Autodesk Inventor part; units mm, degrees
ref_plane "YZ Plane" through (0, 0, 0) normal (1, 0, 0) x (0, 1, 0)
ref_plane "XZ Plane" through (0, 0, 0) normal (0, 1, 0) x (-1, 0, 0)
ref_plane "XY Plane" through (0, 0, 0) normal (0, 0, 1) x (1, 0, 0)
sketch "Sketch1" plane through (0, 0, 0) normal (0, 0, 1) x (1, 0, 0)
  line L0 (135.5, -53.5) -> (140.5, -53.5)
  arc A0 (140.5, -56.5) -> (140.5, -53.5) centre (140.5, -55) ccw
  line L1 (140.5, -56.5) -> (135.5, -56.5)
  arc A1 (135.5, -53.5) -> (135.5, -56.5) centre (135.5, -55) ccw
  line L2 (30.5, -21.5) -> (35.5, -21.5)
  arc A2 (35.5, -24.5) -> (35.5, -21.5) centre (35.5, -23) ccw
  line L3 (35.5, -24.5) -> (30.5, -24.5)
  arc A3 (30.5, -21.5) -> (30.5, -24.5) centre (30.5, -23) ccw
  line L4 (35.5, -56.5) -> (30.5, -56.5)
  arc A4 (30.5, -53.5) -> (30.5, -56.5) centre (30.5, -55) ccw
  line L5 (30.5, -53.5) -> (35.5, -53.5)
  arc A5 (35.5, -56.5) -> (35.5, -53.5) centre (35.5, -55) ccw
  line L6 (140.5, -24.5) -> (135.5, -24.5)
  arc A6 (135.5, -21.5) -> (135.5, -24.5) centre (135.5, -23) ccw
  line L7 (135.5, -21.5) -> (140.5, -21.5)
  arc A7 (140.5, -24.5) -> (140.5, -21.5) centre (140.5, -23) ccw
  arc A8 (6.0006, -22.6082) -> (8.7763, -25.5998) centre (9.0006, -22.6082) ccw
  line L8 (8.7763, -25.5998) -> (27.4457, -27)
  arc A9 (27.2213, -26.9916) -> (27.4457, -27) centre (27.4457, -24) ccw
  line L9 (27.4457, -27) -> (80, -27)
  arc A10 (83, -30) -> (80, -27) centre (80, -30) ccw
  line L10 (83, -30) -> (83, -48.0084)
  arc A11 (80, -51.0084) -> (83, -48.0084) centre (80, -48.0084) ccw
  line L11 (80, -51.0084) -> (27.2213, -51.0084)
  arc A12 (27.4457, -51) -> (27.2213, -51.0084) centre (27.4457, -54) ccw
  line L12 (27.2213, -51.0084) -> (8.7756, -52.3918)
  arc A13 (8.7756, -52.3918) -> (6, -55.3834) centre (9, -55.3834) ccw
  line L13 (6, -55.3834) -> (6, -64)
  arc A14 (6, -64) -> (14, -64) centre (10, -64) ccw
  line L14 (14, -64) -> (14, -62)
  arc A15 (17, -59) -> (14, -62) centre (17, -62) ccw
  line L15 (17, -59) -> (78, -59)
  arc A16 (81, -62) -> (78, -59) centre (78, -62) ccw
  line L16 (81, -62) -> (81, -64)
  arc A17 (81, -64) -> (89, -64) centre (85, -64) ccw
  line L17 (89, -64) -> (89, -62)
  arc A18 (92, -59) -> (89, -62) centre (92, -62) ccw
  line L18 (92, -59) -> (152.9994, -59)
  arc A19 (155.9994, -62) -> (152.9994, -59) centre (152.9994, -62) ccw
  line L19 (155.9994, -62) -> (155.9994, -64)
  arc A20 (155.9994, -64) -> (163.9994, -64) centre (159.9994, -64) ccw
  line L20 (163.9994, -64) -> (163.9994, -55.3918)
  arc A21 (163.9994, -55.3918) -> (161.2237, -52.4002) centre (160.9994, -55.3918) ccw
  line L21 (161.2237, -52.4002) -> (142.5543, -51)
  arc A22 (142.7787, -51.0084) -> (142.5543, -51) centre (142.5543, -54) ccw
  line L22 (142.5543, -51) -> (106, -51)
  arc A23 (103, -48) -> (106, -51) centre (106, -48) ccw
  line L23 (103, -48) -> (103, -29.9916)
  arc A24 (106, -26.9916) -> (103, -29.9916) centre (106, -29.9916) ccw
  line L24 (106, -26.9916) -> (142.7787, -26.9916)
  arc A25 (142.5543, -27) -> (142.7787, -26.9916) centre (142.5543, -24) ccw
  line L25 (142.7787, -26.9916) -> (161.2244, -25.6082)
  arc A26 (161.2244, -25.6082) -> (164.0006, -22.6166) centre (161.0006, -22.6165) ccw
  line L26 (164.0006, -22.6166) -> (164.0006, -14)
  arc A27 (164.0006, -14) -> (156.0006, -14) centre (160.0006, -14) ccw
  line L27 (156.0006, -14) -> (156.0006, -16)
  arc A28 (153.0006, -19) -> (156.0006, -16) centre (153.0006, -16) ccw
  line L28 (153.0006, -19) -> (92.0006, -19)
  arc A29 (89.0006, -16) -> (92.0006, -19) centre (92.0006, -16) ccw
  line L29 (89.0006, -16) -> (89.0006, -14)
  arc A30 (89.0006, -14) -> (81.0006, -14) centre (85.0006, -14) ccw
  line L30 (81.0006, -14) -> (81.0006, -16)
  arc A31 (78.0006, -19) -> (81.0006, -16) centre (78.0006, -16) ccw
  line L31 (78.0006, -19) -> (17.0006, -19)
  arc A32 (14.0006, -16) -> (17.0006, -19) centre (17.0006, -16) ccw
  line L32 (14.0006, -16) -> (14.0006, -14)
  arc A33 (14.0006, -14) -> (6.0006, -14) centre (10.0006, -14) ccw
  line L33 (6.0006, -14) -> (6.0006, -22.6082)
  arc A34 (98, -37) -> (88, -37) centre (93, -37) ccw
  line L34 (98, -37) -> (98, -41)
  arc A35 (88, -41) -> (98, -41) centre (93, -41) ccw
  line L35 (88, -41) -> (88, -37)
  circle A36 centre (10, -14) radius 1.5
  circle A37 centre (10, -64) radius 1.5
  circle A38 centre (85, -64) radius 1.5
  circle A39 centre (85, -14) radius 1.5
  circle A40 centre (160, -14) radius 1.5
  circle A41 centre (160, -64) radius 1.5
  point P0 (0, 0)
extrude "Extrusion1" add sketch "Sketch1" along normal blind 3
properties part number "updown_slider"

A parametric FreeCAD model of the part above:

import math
import FreeCAD as App
import Part
import Sketcher
from FreeCAD import Vector
Q = App.Units.Quantity

doc = App.newDocument("Part")
body = doc.addObject("PartDesign::Body", "Body")

sketch1 = body.newObject("Sketcher::SketchObject", "Sketch")
sketch1.AttachmentSupport = (doc.getObject("XY_Plane"), [""])
sketch1.MapMode = "FlatFace"
sketch1.addGeometry([
    Part.LineSegment(Vector(6, -14, 0), Vector(6, -22.6, 0)),
    Part.ArcOfCircle(Part.Circle(Vector(9, -22.6, 0), Vector(0, 0, 1), 3), math.radians(180), math.radians(266)),
    Part.LineSegment(Vector(8.8, -25.6, 0), Vector(27.4, -27, 0)),
    Part.LineSegment(Vector(27.4, -27, 0), Vector(80, -27, 0)),
    Part.ArcOfCircle(Part.Circle(Vector(80, -30, 0), Vector(0, 0, 1), 3), math.radians(0), math.radians(90)),
    Part.LineSegment(Vector(83, -30, 0), Vector(83, -48, 0)),
    Part.ArcOfCircle(Part.Circle(Vector(80, -48, 0), Vector(0, 0, 1), 3), math.radians(-90), math.radians(0)),
    Part.LineSegment(Vector(80, -51, 0), Vector(27.2, -51, 0)),
    Part.LineSegment(Vector(27.2, -51, 0), Vector(8.8, -52.4, 0)),
    Part.ArcOfCircle(Part.Circle(Vector(9, -55.4, 0), Vector(0, 0, 1), 3), math.radians(94), math.radians(180)),
    Part.LineSegment(Vector(6, -55.4, 0), Vector(6, -64, 0)),
    Part.ArcOfCircle(Part.Circle(Vector(10, -64, 0), Vector(0, 0, 1), 4), math.radians(180), math.radians(360)),
    Part.LineSegment(Vector(14, -64, 0), Vector(14, -62, 0)),
    Part.ArcOfCircle(Part.Circle(Vector(17, -62, 0), Vector(0, 0, 1), 3), math.radians(90), math.radians(180)),
    Part.LineSegment(Vector(17, -59, 0), Vector(78, -59, 0)),
    Part.ArcOfCircle(Part.Circle(Vector(78, -62, 0), Vector(0, 0, 1), 3), math.radians(0), math.radians(90)),
    Part.LineSegment(Vector(81, -62, 0), Vector(81, -64, 0)),
    Part.ArcOfCircle(Part.Circle(Vector(85, -64, 0), Vector(0, 0, 1), 4), math.radians(180), math.radians(360)),
    Part.LineSegment(Vector(89, -64, 0), Vector(89, -62, 0)),
    Part.ArcOfCircle(Part.Circle(Vector(92, -62, 0), Vector(0, 0, 1), 3), math.radians(90), math.radians(180)),
    Part.LineSegment(Vector(92, -59, 0), Vector(153, -59, 0)),
    Part.ArcOfCircle(Part.Circle(Vector(153, -62, 0), Vector(0, 0, 1), 3), math.radians(0), math.radians(90)),
    Part.LineSegment(Vector(156, -62, 0), Vector(156, -64, 0)),
    Part.ArcOfCircle(Part.Circle(Vector(160, -64, 0), Vector(0, 0, 1), 4), math.radians(180), math.radians(360)),
    Part.LineSegment(Vector(164, -64, 0), Vector(164, -55.4, 0)),
    Part.ArcOfCircle(Part.Circle(Vector(161, -55.4, 0), Vector(0, 0, 1), 3), math.radians(0), math.radians(86)),
    Part.LineSegment(Vector(161.2, -52.4, 0), Vector(142.6, -51, 0)),
    Part.LineSegment(Vector(142.6, -51, 0), Vector(106, -51, 0)),
    Part.ArcOfCircle(Part.Circle(Vector(106, -48, 0), Vector(0, 0, 1), 3), math.radians(180), math.radians(270)),
    Part.LineSegment(Vector(103, -48, 0), Vector(103, -30, 0)),
    Part.ArcOfCircle(Part.Circle(Vector(106, -30, 0), Vector(0, 0, 1), 3), math.radians(90), math.radians(180)),
    Part.LineSegment(Vector(106, -27, 0), Vector(142.8, -27, 0)),
    Part.LineSegment(Vector(142.8, -27, 0), Vector(161.2, -25.6, 0)),
    Part.ArcOfCircle(Part.Circle(Vector(161, -22.6, 0), Vector(0, 0, 1), 3), math.radians(-86), math.radians(0)),
    Part.LineSegment(Vector(164, -22.6, 0), Vector(164, -14, 0)),
    Part.ArcOfCircle(Part.Circle(Vector(160, -14, 0), Vector(0, 0, 1), 4), math.radians(0), math.radians(180)),
    Part.LineSegment(Vector(156, -14, 0), Vector(156, -16, 0)),
    Part.ArcOfCircle(Part.Circle(Vector(153, -16, 0), Vector(0, 0, 1), 3), math.radians(-90), math.radians(0)),
    Part.LineSegment(Vector(153, -19, 0), Vector(92, -19, 0)),
    Part.ArcOfCircle(Part.Circle(Vector(92, -16, 0), Vector(0, 0, 1), 3), math.radians(180), math.radians(270)),
    Part.LineSegment(Vector(89, -16, 0), Vector(89, -14, 0)),
    Part.ArcOfCircle(Part.Circle(Vector(85, -14, 0), Vector(0, 0, 1), 4), math.radians(0), math.radians(180)),
    Part.LineSegment(Vector(81, -14, 0), Vector(81, -16, 0)),
    Part.ArcOfCircle(Part.Circle(Vector(78, -16, 0), Vector(0, 0, 1), 3), math.radians(-90), math.radians(0)),
    Part.LineSegment(Vector(78, -19, 0), Vector(17, -19, 0)),
    Part.ArcOfCircle(Part.Circle(Vector(17, -16, 0), Vector(0, 0, 1), 3), math.radians(180), math.radians(270)),
    Part.LineSegment(Vector(14, -16, 0), Vector(14, -14, 0)),
    Part.ArcOfCircle(Part.Circle(Vector(10, -14, 0), Vector(0, 0, 1), 4), math.radians(0), math.radians(180)),
    Part.Circle(Vector(10, -64, 0), Vector(0, 0, 1), 1.5),
    Part.ArcOfCircle(Part.Circle(Vector(35.5, -55, 0), Vector(0, 0, 1), 1.5), math.radians(-90), math.radians(90)),
    Part.LineSegment(Vector(35.5, -56.5, 0), Vector(30.5, -56.5, 0)),
    Part.ArcOfCircle(Part.Circle(Vector(30.5, -55, 0), Vector(0, 0, 1), 1.5), math.radians(90), math.radians(270)),
    Part.LineSegment(Vector(30.5, -53.5, 0), Vector(35.5, -53.5, 0)),
    Part.Circle(Vector(85, -64, 0), Vector(0, 0, 1), 1.5),
    Part.Circle(Vector(160, -64, 0), Vector(0, 0, 1), 1.5),
    Part.ArcOfCircle(Part.Circle(Vector(135.5, -55, 0), Vector(0, 0, 1), 1.5), math.radians(90), math.radians(270)),
    Part.LineSegment(Vector(135.5, -53.5, 0), Vector(140.5, -53.5, 0)),
    Part.ArcOfCircle(Part.Circle(Vector(140.5, -55, 0), Vector(0, 0, 1), 1.5), math.radians(-90), math.radians(90)),
    Part.LineSegment(Vector(140.5, -56.5, 0), Vector(135.5, -56.5, 0)),
    Part.ArcOfCircle(Part.Circle(Vector(30.5, -23, 0), Vector(0, 0, 1), 1.5), math.radians(90), math.radians(270)),
    Part.LineSegment(Vector(30.5, -21.5, 0), Vector(35.5, -21.5, 0)),
    Part.ArcOfCircle(Part.Circle(Vector(35.5, -23, 0), Vector(0, 0, 1), 1.5), math.radians(-90), math.radians(90)),
    Part.LineSegment(Vector(35.5, -24.5, 0), Vector(30.5, -24.5, 0)),
    Part.Circle(Vector(10, -14, 0), Vector(0, 0, 1), 1.5),
    Part.Circle(Vector(85, -14, 0), Vector(0, 0, 1), 1.5),
    Part.ArcOfCircle(Part.Circle(Vector(93, -37, 0), Vector(0, 0, 1), 5), math.radians(0), math.radians(180)),
    Part.LineSegment(Vector(98, -37, 0), Vector(98, -41, 0)),
    Part.ArcOfCircle(Part.Circle(Vector(93, -41, 0), Vector(0, 0, 1), 5), math.radians(180), math.radians(360)),
    Part.LineSegment(Vector(88, -41, 0), Vector(88, -37, 0)),
    Part.ArcOfCircle(Part.Circle(Vector(140.5, -23, 0), Vector(0, 0, 1), 1.5), math.radians(-90), math.radians(90)),
    Part.LineSegment(Vector(140.5, -24.5, 0), Vector(135.5, -24.5, 0)),
    Part.ArcOfCircle(Part.Circle(Vector(135.5, -23, 0), Vector(0, 0, 1), 1.5), math.radians(90), math.radians(270)),
    Part.LineSegment(Vector(135.5, -21.5, 0), Vector(140.5, -21.5, 0)),
    Part.Circle(Vector(160, -14, 0), Vector(0, 0, 1), 1.5),
], False)
sketch1.addConstraint([
    Sketcher.Constraint("Tangent", 0, 2, 1, 1),
    Sketcher.Constraint("Tangent", 1, 2, 2, 1),
    Sketcher.Constraint("Coincident", 2, 2, 3, 1),
    Sketcher.Constraint("Tangent", 3, 2, 4, 2),
    Sketcher.Constraint("Tangent", 4, 1, 5, 1),
    Sketcher.Constraint("Tangent", 5, 2, 6, 2),
    Sketcher.Constraint("Tangent", 6, 1, 7, 1),
    Sketcher.Constraint("Coincident", 7, 2, 8, 1),
    Sketcher.Constraint("Tangent", 8, 2, 9, 1),
    Sketcher.Constraint("Tangent", 9, 2, 10, 1),
    Sketcher.Constraint("Tangent", 10, 2, 11, 1),
    Sketcher.Constraint("Tangent", 11, 2, 12, 1),
    Sketcher.Constraint("Tangent", 12, 2, 13, 2),
    Sketcher.Constraint("Tangent", 13, 1, 14, 1),
    Sketcher.Constraint("Tangent", 14, 2, 15, 2),
    Sketcher.Constraint("Tangent", 15, 1, 16, 1),
    Sketcher.Constraint("Tangent", 16, 2, 17, 1),
    Sketcher.Constraint("Tangent", 17, 2, 18, 1),
    Sketcher.Constraint("Tangent", 18, 2, 19, 2),
    Sketcher.Constraint("Tangent", 19, 1, 20, 1),
    Sketcher.Constraint("Tangent", 20, 2, 21, 2),
    Sketcher.Constraint("Tangent", 21, 1, 22, 1),
    Sketcher.Constraint("Tangent", 22, 2, 23, 1),
    Sketcher.Constraint("Tangent", 23, 2, 24, 1),
    Sketcher.Constraint("Tangent", 24, 2, 25, 1),
    Sketcher.Constraint("Tangent", 25, 2, 26, 1),
    Sketcher.Constraint("Coincident", 26, 2, 27, 1),
    Sketcher.Constraint("Tangent", 27, 2, 28, 2),
    Sketcher.Constraint("Tangent", 28, 1, 29, 1),
    Sketcher.Constraint("Tangent", 29, 2, 30, 2),
    Sketcher.Constraint("Tangent", 30, 1, 31, 1),
    Sketcher.Constraint("Coincident", 31, 2, 32, 1),
    Sketcher.Constraint("Tangent", 32, 2, 33, 1),
    Sketcher.Constraint("Tangent", 33, 2, 34, 1),
    Sketcher.Constraint("Tangent", 34, 2, 35, 1),
    Sketcher.Constraint("Tangent", 35, 2, 36, 1),
    Sketcher.Constraint("Tangent", 36, 2, 37, 2),
    Sketcher.Constraint("Tangent", 37, 1, 38, 1),
    Sketcher.Constraint("Tangent", 38, 2, 39, 2),
    Sketcher.Constraint("Tangent", 39, 1, 40, 1),
    Sketcher.Constraint("Tangent", 40, 2, 41, 1),
    Sketcher.Constraint("Tangent", 41, 2, 42, 1),
    Sketcher.Constraint("Tangent", 42, 2, 43, 2),
    Sketcher.Constraint("Tangent", 43, 1, 44, 1),
    Sketcher.Constraint("Tangent", 44, 2, 45, 2),
    Sketcher.Constraint("Tangent", 45, 1, 46, 1),
    Sketcher.Constraint("Tangent", 46, 2, 47, 1),
    Sketcher.Constraint("Tangent", 47, 2, 0, 1),
    Sketcher.Constraint("Tangent", 49, 1, 50, 1),
    Sketcher.Constraint("Tangent", 50, 2, 51, 2),
    Sketcher.Constraint("Tangent", 51, 1, 52, 1),
    Sketcher.Constraint("Tangent", 52, 2, 49, 2),
    Sketcher.Constraint("Tangent", 55, 1, 56, 1),
    Sketcher.Constraint("Tangent", 56, 2, 57, 2),
    Sketcher.Constraint("Tangent", 57, 1, 58, 1),
    Sketcher.Constraint("Tangent", 58, 2, 55, 2),
    Sketcher.Constraint("Tangent", 59, 1, 60, 1),
    Sketcher.Constraint("Tangent", 60, 2, 61, 2),
    Sketcher.Constraint("Tangent", 61, 1, 62, 1),
    Sketcher.Constraint("Tangent", 62, 2, 59, 2),
    Sketcher.Constraint("Tangent", 65, 1, 66, 1),
    Sketcher.Constraint("Tangent", 66, 2, 67, 2),
    Sketcher.Constraint("Tangent", 67, 1, 68, 1),
    Sketcher.Constraint("Tangent", 68, 2, 65, 2),
    Sketcher.Constraint("Tangent", 69, 1, 70, 1),
    Sketcher.Constraint("Tangent", 70, 2, 71, 2),
    Sketcher.Constraint("Tangent", 71, 1, 72, 1),
    Sketcher.Constraint("Tangent", 72, 2, 69, 2),
    Sketcher.Constraint("Vertical", 0),
    Sketcher.Constraint("Horizontal", 3),
    Sketcher.Constraint("Vertical", 5),
    Sketcher.Constraint("Horizontal", 7),
    Sketcher.Constraint("Vertical", 10),
    Sketcher.Constraint("Vertical", 12),
    Sketcher.Constraint("Horizontal", 14),
    Sketcher.Constraint("Vertical", 16),
    Sketcher.Constraint("Vertical", 18),
    Sketcher.Constraint("Horizontal", 20),
    Sketcher.Constraint("Vertical", 22),
    Sketcher.Constraint("Vertical", 24),
    Sketcher.Constraint("Horizontal", 27),
    Sketcher.Constraint("Vertical", 29),
    Sketcher.Constraint("Horizontal", 31),
    Sketcher.Constraint("Vertical", 34),
    Sketcher.Constraint("Vertical", 36),
    Sketcher.Constraint("Horizontal", 38),
    Sketcher.Constraint("Vertical", 40),
    Sketcher.Constraint("Vertical", 42),
    Sketcher.Constraint("Horizontal", 44),
    Sketcher.Constraint("Vertical", 46),
    Sketcher.Constraint("Horizontal", 50),
    Sketcher.Constraint("Horizontal", 52),
    Sketcher.Constraint("Horizontal", 56),
    Sketcher.Constraint("Horizontal", 58),
    Sketcher.Constraint("Horizontal", 60),
    Sketcher.Constraint("Horizontal", 62),
    Sketcher.Constraint("Vertical", 66),
    Sketcher.Constraint("Vertical", 68),
    Sketcher.Constraint("Horizontal", 70),
    Sketcher.Constraint("Horizontal", 72),
    Sketcher.Constraint("Coincident", 48, 3, 11, 3),
    Sketcher.Constraint("Coincident", 53, 3, 17, 3),
    Sketcher.Constraint("Equal", 1, 4),
    Sketcher.Constraint("Equal", 4, 6),
    Sketcher.Constraint("Equal", 6, 9),
    Sketcher.Constraint("Equal", 9, 13),
    Sketcher.Constraint("Equal", 13, 15),
    Sketcher.Constraint("Equal", 11, 17),
    Sketcher.Constraint("Equal", 15, 19),
    Sketcher.Constraint("Equal", 19, 21),
    Sketcher.Constraint("Equal", 17, 23),
    Sketcher.Constraint("Equal", 21, 25),
    Sketcher.Constraint("Equal", 25, 28),
    Sketcher.Constraint("Equal", 28, 30),
    Sketcher.Constraint("Equal", 30, 33),
    Sketcher.Constraint("Equal", 23, 35),
    Sketcher.Constraint("Equal", 33, 37),
    Sketcher.Constraint("Equal", 37, 39),
    Sketcher.Constraint("Equal", 35, 41),
    Sketcher.Constraint("Equal", 39, 43),
    Sketcher.Constraint("Equal", 43, 45),
    Sketcher.Constraint("Equal", 41, 47),
    Sketcher.Constraint("Equal", 48, 49),
    Sketcher.Constraint("Equal", 51, 53),
    Sketcher.Constraint("Equal", 53, 54),
    Sketcher.Constraint("Equal", 54, 55),
    Sketcher.Constraint("Equal", 57, 59),
    Sketcher.Constraint("Equal", 61, 63),
    Sketcher.Constraint("Equal", 63, 64),
    Sketcher.Constraint("Equal", 64, 69),
    Sketcher.Constraint("Equal", 71, 73),
    Sketcher.Constraint("Parallel", 2, 26),
    Sketcher.Constraint("Parallel", 8, 32),
    Sketcher.Constraint("Horizontal", 11, 3, 17, 3),
    Sketcher.Constraint("Horizontal", 15, 3, 19, 3),
    Sketcher.Constraint("Horizontal", 17, 3, 23, 3),
    Sketcher.Constraint("Horizontal", 35, 3, 41, 3),
    Sketcher.Constraint("Horizontal", 39, 3, 43, 3),
    Sketcher.Constraint("Horizontal", 41, 3, 47, 3),
    Sketcher.Constraint("Horizontal", 53, 3, 54, 3),
    Sketcher.Constraint("Horizontal", 51, 3, 55, 3),
    Sketcher.Constraint("Horizontal", 47, 3, 63, 3),
    Sketcher.Constraint("Horizontal", 63, 3, 64, 3),
    Sketcher.Constraint("Horizontal", 61, 3, 69, 3),
    Sketcher.Constraint("Horizontal", 64, 3, 73, 3),
    Sketcher.Constraint("Vertical", 51, 3, 59, 3),
    Sketcher.Constraint("Vertical", 49, 3, 61, 3),
    Sketcher.Constraint("Vertical", 48, 3, 63, 3),
    Sketcher.Constraint("Vertical", 53, 3, 64, 3),
    Sketcher.Constraint("Vertical", 57, 3, 69, 3),
    Sketcher.Constraint("Vertical", 55, 3, 71, 3),
    Sketcher.Constraint("Vertical", 54, 3, 73, 3),
    Sketcher.Constraint("Equal", 14, 38),
    Sketcher.Constraint("Equal", 38, 44),
    Sketcher.Constraint("Equal", 52, 56),
    Sketcher.Constraint("Equal", 0, 24),
    Sketcher.Constraint("Equal", 5, 29),
    Sketcher.Constraint("Equal", 10, 34),
    Sketcher.Constraint("Equal", 22, 36),
    Sketcher.Constraint("Equal", 2, 26),
    Sketcher.Constraint("Diameter", 48, Q("3 mm")),
    Sketcher.Constraint("Radius", 1, Q("3 mm")),
    Sketcher.Constraint("Radius", 11, Q("4 mm")),
    Sketcher.Constraint("Radius", 65, Q("5 mm")),
    Sketcher.Constraint("DistanceX", 14, 1, 14, 2, Q("61 mm")),
    Sketcher.Constraint("DistanceX", 50, 2, 50, 1, Q("5 mm")),
    Sketcher.Constraint("DistanceY", 12, 1, 12, 2, Q("2 mm")),
    Sketcher.Constraint("DistanceY", 66, 2, 66, 1, Q("4 mm")),
    Sketcher.Constraint("DistanceX", -1, 1, 4, 3, Q("80 mm")),
    Sketcher.Constraint("DistanceY", 4, 3, -1, 1, Q("30 mm")),
    Sketcher.Constraint("DistanceX", -1, 1, 9, 3, Q("9 mm")),
    Sketcher.Constraint("DistanceY", 11, 3, -1, 1, Q("64 mm")),
    Sketcher.Constraint("DistanceX", -1, 1, 28, 3, Q("106 mm")),
    Sketcher.Constraint("DistanceY", 28, 3, -1, 1, Q("48 mm")),
    Sketcher.Constraint("DistanceY", 49, 3, -1, 1, Q("55 mm")),
    Sketcher.Constraint("DistanceX", -1, 1, 54, 3, Q("160 mm")),
    Sketcher.Constraint("DistanceY", 59, 3, -1, 1, Q("23 mm")),
    Sketcher.Constraint("DistanceX", -1, 1, 65, 3, Q("93 mm")),
    Sketcher.Constraint("DistanceY", 65, 3, -1, 1, Q("37 mm")),
    Sketcher.Constraint("DistanceX", -1, 1, 49, 3, Q("35.5 mm")),
    Sketcher.Constraint("DistanceX", -1, 1, 55, 3, Q("135.5 mm")),
    Sketcher.Constraint("Angle", 2, Q("-4.2891 deg")),
    Sketcher.Constraint("Angle", 8, Q("-175.711 deg")),
    Sketcher.Constraint("DistanceX", 3, 1, 3, 2, Q("52.5543 mm")),
    Sketcher.Constraint("DistanceX", 7, 2, 7, 1, Q("52.7787 mm")),
    Sketcher.Constraint("DistanceX", 20, 1, 20, 2, Q("60.9994 mm")),
    Sketcher.Constraint("DistanceX", 27, 2, 27, 1, Q("36.5543 mm")),
    Sketcher.Constraint("DistanceY", 5, 2, 5, 1, Q("18.0084 mm")),
])
pad1 = body.newObject("PartDesign::Pad", "Pad")
pad1.Profile = sketch1
pad1.Length = 3

doc.recompute()
